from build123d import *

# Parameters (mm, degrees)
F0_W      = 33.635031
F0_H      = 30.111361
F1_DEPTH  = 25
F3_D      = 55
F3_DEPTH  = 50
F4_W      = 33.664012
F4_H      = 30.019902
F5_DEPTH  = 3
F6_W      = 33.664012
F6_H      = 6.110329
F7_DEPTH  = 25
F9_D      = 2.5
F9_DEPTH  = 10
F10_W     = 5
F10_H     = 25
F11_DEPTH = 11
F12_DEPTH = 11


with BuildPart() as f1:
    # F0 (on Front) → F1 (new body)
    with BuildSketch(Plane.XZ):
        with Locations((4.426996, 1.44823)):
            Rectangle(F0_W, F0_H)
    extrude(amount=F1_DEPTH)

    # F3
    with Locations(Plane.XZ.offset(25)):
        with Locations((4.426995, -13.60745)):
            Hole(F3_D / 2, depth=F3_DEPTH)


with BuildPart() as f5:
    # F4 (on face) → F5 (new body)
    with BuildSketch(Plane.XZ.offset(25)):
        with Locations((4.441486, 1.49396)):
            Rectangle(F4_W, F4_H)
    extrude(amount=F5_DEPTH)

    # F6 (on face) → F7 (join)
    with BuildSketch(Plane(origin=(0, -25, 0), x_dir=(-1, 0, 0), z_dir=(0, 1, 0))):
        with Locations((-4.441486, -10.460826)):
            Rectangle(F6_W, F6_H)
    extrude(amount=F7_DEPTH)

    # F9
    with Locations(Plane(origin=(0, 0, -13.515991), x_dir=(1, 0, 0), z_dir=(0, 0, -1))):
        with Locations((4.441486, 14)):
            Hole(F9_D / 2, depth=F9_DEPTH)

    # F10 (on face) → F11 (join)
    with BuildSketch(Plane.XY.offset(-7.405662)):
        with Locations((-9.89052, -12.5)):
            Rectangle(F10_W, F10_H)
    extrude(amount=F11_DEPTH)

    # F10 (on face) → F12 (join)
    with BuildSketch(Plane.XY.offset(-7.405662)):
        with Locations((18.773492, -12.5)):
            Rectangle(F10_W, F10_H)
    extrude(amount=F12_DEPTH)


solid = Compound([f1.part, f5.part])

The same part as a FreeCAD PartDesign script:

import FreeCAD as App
import Part
import Sketcher
from FreeCAD import Vector

doc = App.newDocument("Part")
params = doc.addObject("Spreadsheet::Sheet", "Params")
for row, (alias, value) in enumerate([
    ("pad1_length", "25 mm"),
    ("sketch2_diameter", "55 mm"),
    ("hole_diameter", "55 mm"),
    ("hole_depth", "50 mm"),
    ("pad2_length", "3 mm"),
    ("pad3_length", "25 mm"),
    ("sketch5_diameter", "2.5 mm"),
    ("hole2_diameter", "2.5 mm"),
    ("hole2_depth", "10 mm"),
    ("sketch6_width", "5 mm"),
    ("sketch6_height", "25 mm"),
    ("pad4_length", "11 mm"),
    ("sketch7_width", "5 mm"),
    ("sketch7_height", "25 mm"),
    ("pad5_length", "11 mm"),
], start=1):
    params.set(f"A{row}", alias)
    params.set(f"B{row}", "=" + value)
    params.setAlias(f"B{row}", alias)

body = doc.addObject("PartDesign::Body", "Body")

sketch1 = body.newObject("Sketcher::SketchObject", "Sketch")
sketch1.AttachmentSupport = (doc.getObject("XZ_Plane"), [""])
sketch1.MapMode = "FlatFace"
sketch1.addGeometry([
    Part.LineSegment(Vector(-12, 17, 0), Vector(-12, -14, 0)),
    Part.LineSegment(Vector(-12, -14, 0), Vector(21, -14, 0)),
    Part.LineSegment(Vector(21, -14, 0), Vector(21, 17, 0)),
    Part.LineSegment(Vector(21, 17, 0), Vector(-12, 17, 0)),
], False)
sketch1.addConstraint([
    Sketcher.Constraint("Coincident", 0, 2, 1, 1),
    Sketcher.Constraint("Coincident", 1, 2, 2, 1),
    Sketcher.Constraint("Coincident", 2, 2, 3, 1),
    Sketcher.Constraint("Coincident", 3, 2, 0, 1),
    Sketcher.Constraint("Vertical", 0),
    Sketcher.Constraint("Horizontal", 1),
    Sketcher.Constraint("Vertical", 2),
    Sketcher.Constraint("Horizontal", 3),
    Sketcher.Constraint("DistanceX", 1, 1, 1, 2, 33.635031),
    Sketcher.Constraint("DistanceY", 0, 2, 0, 1, 30.111361),
    Sketcher.Constraint("DistanceX", 0, 2, -1, 1, 12.390519),
    Sketcher.Constraint("DistanceY", 0, 2, -1, 1, 13.607451),
])
pad1 = body.newObject("PartDesign::Pad", "Pad")
pad1.Profile = sketch1
pad1.setExpression("Length", "Params.pad1_length")

sketch2 = body.newObject("Sketcher::SketchObject", "Sketch001")
sketch2.AttachmentSupport = (doc.getObject("XZ_Plane"), [""])
sketch2.MapMode = "FlatFace"
sketch2.AttachmentOffset = App.Placement(Vector(0, 0, 25), App.Rotation())
sketch2.addGeometry(Part.Circle(Vector(4, -14, 0), Vector(0, 0, 1), 28), False)
sketch2.addConstraint([
    Sketcher.Constraint("Diameter", 0, 55.0),
    Sketcher.Constraint("DistanceY", 0, 3, -1, 1, 13.60745),
    Sketcher.Constraint("DistanceX", -1, 1, 0, 3, 4.426995),
])
sketch2.setExpression("Constraints[0]", "Params.sketch2_diameter")
doc.recompute()
hole = body.newObject("PartDesign::Hole", "Hole")
hole.Profile = sketch2
hole.ThreadType = "None"
hole.setExpression("Diameter", "Params.hole_diameter")
hole.DepthType = "Dimension"
hole.setExpression("Depth", "Params.hole_depth")
hole.DrillPoint = "Flat"
body2 = doc.addObject("PartDesign::Body", "Body001")

sketch3 = body2.newObject("Sketcher::SketchObject", "Sketch002")
sketch3.AttachmentSupport = (doc.getObject("XZ_Plane001"), [""])
sketch3.MapMode = "FlatFace"
sketch3.AttachmentOffset = App.Placement(Vector(0, 0, 25), App.Rotation())
sketch3.addGeometry([
    Part.LineSegment(Vector(-12, 17, 0), Vector(-12, -14, 0)),
    Part.LineSegment(Vector(-12, -14, 0), Vector(21, -14, 0)),
    Part.LineSegment(Vector(21, -14, 0), Vector(21, 17, 0)),
    Part.LineSegment(Vector(21, 17, 0), Vector(-12, 17, 0)),
], False)
sketch3.addConstraint([
    Sketcher.Constraint("Coincident", 0, 2, 1, 1),
    Sketcher.Constraint("Coincident", 1, 2, 2, 1),
    Sketcher.Constraint("Coincident", 2, 2, 3, 1),
    Sketcher.Constraint("Coincident", 3, 2, 0, 1),
    Sketcher.Constraint("Vertical", 0),
    Sketcher.Constraint("Horizontal", 1),
    Sketcher.Constraint("Vertical", 2),
    Sketcher.Constraint("Horizontal", 3),
    Sketcher.Constraint("DistanceY", 0, 2, 0, 1, 30.019902),
    Sketcher.Constraint("DistanceX", 1, 1, 1, 2, 33.664012),
    Sketcher.Constraint("DistanceX", 0, 2, -1, 1, 12.39052),
    Sketcher.Constraint("DistanceY", 0, 2, -1, 1, 13.515991),
])
pad2 = body2.newObject("PartDesign::Pad", "Pad001")
pad2.Profile = sketch3
pad2.setExpression("Length", "Params.pad2_length")

sketch4 = body2.newObject("Sketcher::SketchObject", "Sketch003")
sketch4.AttachmentSupport = (doc.getObject("XZ_Plane001"), [""])
sketch4.MapMode = "FlatFace"
sketch4.AttachmentOffset = App.Placement(Vector(0, 0, 25), App.Rotation())
sketch4.addGeometry([
    Part.LineSegment(Vector(21, -7, 0), Vector(21, -14, 0)),
    Part.LineSegment(Vector(21, -14, 0), Vector(-12, -14, 0)),
    Part.LineSegment(Vector(-12, -14, 0), Vector(-12, -7, 0)),
    Part.LineSegment(Vector(-12, -7, 0), Vector(21, -7, 0)),
], False)
sketch4.addConstraint([
    Sketcher.Constraint("Coincident", 0, 2, 1, 1),
    Sketcher.Constraint("Coincident", 1, 2, 2, 1),
    Sketcher.Constraint("Coincident", 2, 2, 3, 1),
    Sketcher.Constraint("Coincident", 3, 2, 0, 1),
    Sketcher.Constraint("Vertical", 0),
    Sketcher.Constraint("Horizontal", 1),
    Sketcher.Constraint("Vertical", 2),
    Sketcher.Constraint("Horizontal", 3),
    Sketcher.Constraint("DistanceY", 0, 2, 0, 1, 6.110329),
    Sketcher.Constraint("DistanceX", 1, 2, 1, 1, 33.664012),
    Sketcher.Constraint("DistanceY", 0, 2, -1, 1, 13.51599),
    Sketcher.Constraint("DistanceX", 1, 2, -1, 1, 12.39052),
])
pad3 = body2.newObject("PartDesign::Pad", "Pad002")
pad3.Profile = sketch4
pad3.setExpression("Length", "Params.pad3_length")
pad3.Reversed = True

sketch5 = body2.newObject("Sketcher::SketchObject", "Sketch004")
sketch5.AttachmentSupport = (doc.getObject("XY_Plane001"), [""])
sketch5.MapMode = "FlatFace"
sketch5.AttachmentOffset = App.Placement(Vector(0, 0, -13.515991), App.Rotation())
sketch5.addGeometry(Part.Circle(Vector(4.4, -14, 0), Vector(0, 0, 1), 1.2), False)
sketch5.addConstraint([
    Sketcher.Constraint("Diameter", 0, 2.5),
    Sketcher.Constraint("DistanceY", 0, 3, -1, 1, 14.0),
    Sketcher.Constraint("DistanceX", -1, 1, 0, 3, 4.441486),
])
sketch5.setExpression("Constraints[0]", "Params.sketch5_diameter")
doc.recompute()
hole2 = body2.newObject("PartDesign::Hole", "Hole001")
hole2.Profile = sketch5
hole2.ThreadType = "None"
hole2.setExpression("Diameter", "Params.hole2_diameter")
hole2.DepthType = "Dimension"
hole2.setExpression("Depth", "Params.hole2_depth")
hole2.DrillPoint = "Flat"
hole2.Reversed = True

sketch6 = body2.newObject("Sketcher::SketchObject", "Sketch005")
sketch6.AttachmentSupport = (doc.getObject("XY_Plane001"), [""])
sketch6.MapMode = "FlatFace"
sketch6.AttachmentOffset = App.Placement(Vector(0, 0, -7.405662), App.Rotation())
sketch6.addGeometry([
    Part.LineSegment(Vector(-12, 0, 0), Vector(-12, -25, 0)),
    Part.LineSegment(Vector(-12, -25, 0), Vector(-7, -25, 0)),
    Part.LineSegment(Vector(-7, -25, 0), Vector(-7, 0, 0)),
    Part.LineSegment(Vector(-7, 0, 0), Vector(-12, 0, 0)),
], False)
sketch6.addConstraint([
    Sketcher.Constraint("Coincident", 0, 2, 1, 1),
    Sketcher.Constraint("Coincident", 1, 2, 2, 1),
    Sketcher.Constraint("Coincident", 2, 2, 3, 1),
    Sketcher.Constraint("Coincident", 3, 2, 0, 1),
    Sketcher.Constraint("Vertical", 0),
    Sketcher.Constraint("Horizontal", 1),
    Sketcher.Constraint("Vertical", 2),
    Sketcher.Constraint("Horizontal", 3),
    Sketcher.Constraint("PointOnObject", 2, 2, -1),
    Sketcher.Constraint("DistanceX", 1, 1, 1, 2, 5.0),
    Sketcher.Constraint("DistanceY", 0, 2, 0, 1, 25.0),
    Sketcher.Constraint("DistanceX", 0, 2, -1, 1, 12.39052),
])
sketch6.setExpression("Constraints[9]", "Params.sketch6_width")
sketch6.setExpression("Constraints[10]", "Params.sketch6_height")
pad4 = body2.newObject("PartDesign::Pad", "Pad003")
pad4.Profile = sketch6
pad4.setExpression("Length", "Params.pad4_length")

sketch7 = body2.newObject("Sketcher::SketchObject", "Sketch006")
sketch7.AttachmentSupport = (doc.getObject("XY_Plane001"), [""])
sketch7.MapMode = "FlatFace"
sketch7.AttachmentOffset = App.Placement(Vector(0, 0, -7.405662), App.Rotation())
sketch7.addGeometry([
    Part.LineSegment(Vector(16, 0, 0), Vector(16, -25, 0)),
    Part.LineSegment(Vector(16, -25, 0), Vector(21, -25, 0)),
    Part.LineSegment(Vector(21, -25, 0), Vector(21, 0, 0)),
    Part.LineSegment(Vector(21, 0, 0), Vector(16, 0, 0)),
], False)
sketch7.addConstraint([
    Sketcher.Constraint("Coincident", 0, 2, 1, 1),
    Sketcher.Constraint("Coincident", 1, 2, 2, 1),
    Sketcher.Constraint("Coincident", 2, 2, 3, 1),
    Sketcher.Constraint("Coincident", 3, 2, 0, 1),
    Sketcher.Constraint("Vertical", 0),
    Sketcher.Constraint("Horizontal", 1),
    Sketcher.Constraint("Vertical", 2),
    Sketcher.Constraint("Horizontal", 3),
    Sketcher.Constraint("PointOnObject", 2, 2, -1),
    Sketcher.Constraint("DistanceX", 1, 1, 1, 2, 5.0),
    Sketcher.Constraint("DistanceY", 0, 2, 0, 1, 25.0),
    Sketcher.Constraint("DistanceX", -1, 1, 0, 2, 16.273492),
])
sketch7.setExpression("Constraints[9]", "Params.sketch7_width")
sketch7.setExpression("Constraints[10]", "Params.sketch7_height")
pad5 = body2.newObject("PartDesign::Pad", "Pad004")
pad5.Profile = sketch7
pad5.setExpression("Length", "Params.pad5_length")

doc.recompute()
